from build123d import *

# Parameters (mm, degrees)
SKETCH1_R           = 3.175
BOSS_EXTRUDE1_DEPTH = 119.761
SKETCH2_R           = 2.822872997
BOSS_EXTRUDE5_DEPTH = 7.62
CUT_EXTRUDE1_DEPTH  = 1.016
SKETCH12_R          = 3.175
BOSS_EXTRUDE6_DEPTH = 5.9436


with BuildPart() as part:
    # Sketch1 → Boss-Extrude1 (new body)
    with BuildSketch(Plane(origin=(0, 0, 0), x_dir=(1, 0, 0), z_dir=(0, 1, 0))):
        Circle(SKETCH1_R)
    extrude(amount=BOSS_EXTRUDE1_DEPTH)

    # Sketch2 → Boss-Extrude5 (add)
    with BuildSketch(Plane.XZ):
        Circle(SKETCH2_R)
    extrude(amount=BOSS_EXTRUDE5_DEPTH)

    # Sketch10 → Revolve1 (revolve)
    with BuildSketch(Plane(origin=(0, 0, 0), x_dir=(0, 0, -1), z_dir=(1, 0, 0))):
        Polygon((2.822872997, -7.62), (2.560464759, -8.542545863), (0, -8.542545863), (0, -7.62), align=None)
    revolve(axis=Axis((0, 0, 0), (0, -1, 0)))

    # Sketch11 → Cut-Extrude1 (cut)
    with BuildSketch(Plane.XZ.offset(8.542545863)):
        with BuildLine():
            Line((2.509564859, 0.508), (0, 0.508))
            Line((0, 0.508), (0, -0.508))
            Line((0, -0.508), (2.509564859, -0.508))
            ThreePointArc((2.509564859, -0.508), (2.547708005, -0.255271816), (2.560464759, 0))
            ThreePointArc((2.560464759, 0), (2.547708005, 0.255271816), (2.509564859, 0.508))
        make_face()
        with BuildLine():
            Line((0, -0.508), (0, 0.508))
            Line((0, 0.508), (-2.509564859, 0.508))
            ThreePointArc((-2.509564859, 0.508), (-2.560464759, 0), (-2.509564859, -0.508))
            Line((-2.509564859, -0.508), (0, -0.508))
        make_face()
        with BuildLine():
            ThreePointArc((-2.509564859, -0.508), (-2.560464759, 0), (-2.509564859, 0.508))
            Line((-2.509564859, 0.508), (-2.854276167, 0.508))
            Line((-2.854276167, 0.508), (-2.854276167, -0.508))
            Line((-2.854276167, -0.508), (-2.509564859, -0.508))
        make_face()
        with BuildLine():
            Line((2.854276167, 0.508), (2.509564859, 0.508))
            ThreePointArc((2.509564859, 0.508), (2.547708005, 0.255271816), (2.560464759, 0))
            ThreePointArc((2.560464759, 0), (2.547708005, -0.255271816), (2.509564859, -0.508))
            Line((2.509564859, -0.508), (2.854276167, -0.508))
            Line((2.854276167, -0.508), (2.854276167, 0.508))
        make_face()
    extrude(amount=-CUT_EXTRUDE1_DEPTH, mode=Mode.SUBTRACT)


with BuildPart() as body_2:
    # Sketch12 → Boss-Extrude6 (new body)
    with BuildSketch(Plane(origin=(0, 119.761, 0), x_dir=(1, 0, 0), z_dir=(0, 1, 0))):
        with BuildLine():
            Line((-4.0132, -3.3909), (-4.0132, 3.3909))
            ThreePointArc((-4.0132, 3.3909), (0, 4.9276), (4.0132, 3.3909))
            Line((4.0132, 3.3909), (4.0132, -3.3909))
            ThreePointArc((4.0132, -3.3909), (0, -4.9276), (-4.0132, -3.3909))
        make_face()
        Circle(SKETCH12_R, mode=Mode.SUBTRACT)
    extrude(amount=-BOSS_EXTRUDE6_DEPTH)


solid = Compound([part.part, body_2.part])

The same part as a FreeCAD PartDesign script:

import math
import FreeCAD as App
import Part
import Sketcher
from FreeCAD import Vector
Q = App.Units.Quantity


def add_polygon(sketch, points):
    """Adds a closed chain of lines whose ends are joined by coincident constraints."""
    first, n = sketch.GeometryCount, len(points)
    for a, b in zip(points, points[1:] + points[:1]):
        sketch.addGeometry(Part.LineSegment(App.Vector(*a, 0), App.Vector(*b, 0)), False)
    for i in range(n):
        sketch.addConstraint(Sketcher.Constraint("Coincident", first + i, 2, first + (i + 1) % n, 1))

doc = App.newDocument("Part")
body = doc.addObject("PartDesign::Body", "Body")

sketch1 = body.newObject("Sketcher::SketchObject", "Sketch")
sketch1.AttachmentSupport = (doc.getObject("XZ_Plane"), [""])
sketch1.MapMode = "FlatFace"
sketch1.addGeometry(Part.Circle(Vector(0, 0, 0), Vector(0, 0, 1), 3.175), False)
sketch1.addConstraint(Sketcher.Constraint("Coincident", 0, 3, -1, 1))
sketch1.addConstraint(Sketcher.Constraint("Diameter", 0, Q("0.25 in")))
pad1 = body.newObject("PartDesign::Pad", "Pad")
pad1.Profile = sketch1
pad1.Length = Q("4.715 in")
pad1.Reversed = True

sketch2 = body.newObject("Sketcher::SketchObject", "Sketch001")
sketch2.AttachmentSupport = (doc.getObject("XZ_Plane"), [""])
sketch2.MapMode = "FlatFace"
sketch2.addGeometry(Part.Circle(Vector(0, 0, 0), Vector(0, 0, 1), 2.822873), False)
sketch2.addConstraint(Sketcher.Constraint("Coincident", 0, 3, -1, 1))
sketch2.addConstraint(Sketcher.Constraint("Diameter", 0, 5.645746))
pad2 = body.newObject("PartDesign::Pad", "Pad001")
pad2.Profile = sketch2
pad2.Length = Q("0.3 in")

sketch3 = body.newObject("Sketcher::SketchObject", "Sketch002")
sketch3.AttachmentSupport = (doc.getObject("YZ_Plane"), [""])
sketch3.MapMode = "FlatFace"
add_polygon(sketch3, [(-8.542546, -2.560465), (-7.62, -2.822873), (-7.62, 0), (-8.542546, 0)])
sketch3.addConstraint(Sketcher.Constraint("Vertical", 1))
sketch3.addConstraint(Sketcher.Constraint("Horizontal", 2))
sketch3.addConstraint(Sketcher.Constraint("Vertical", 3))
sketch3.addConstraint(Sketcher.Constraint("PointOnObject", 1, 2, -1))
sketch3.addConstraint(Sketcher.Constraint("DistanceX", 0, 2, -1, 1, Q("0.3 in")))
sketch3.addConstraint(Sketcher.Constraint("Distance", 0, 0.95914))
sketch3.addConstraint(Sketcher.Constraint("DistanceX", 2, 2, 2, 1, 0.922546))
sketch3.addConstraint(Sketcher.Constraint("DistanceY", 1, 1, 1, 2, 2.822873))
revolution = body.newObject("PartDesign::Revolution", "Revolution")
revolution.Profile = sketch3
revolution.ReferenceAxis = (sketch3, ["H_Axis"])
revolution.Angle = 360

sketch4 = body.newObject("Sketcher::SketchObject", "Sketch003")
sketch4.AttachmentSupport = (doc.getObject("XZ_Plane"), [""])
sketch4.MapMode = "FlatFace"
sketch4.AttachmentOffset = App.Placement(Vector(0, 0, 8.542546), App.Rotation())
add_polygon(sketch4, [(-2.854276, 0.508), (-2.854276, -0.508), (2.854276, -0.508), (2.854276, 0.508)])
sketch4.addConstraint(Sketcher.Constraint("Vertical", 0))
sketch4.addConstraint(Sketcher.Constraint("Horizontal", 1))
sketch4.addConstraint(Sketcher.Constraint("Vertical", 2))
sketch4.addConstraint(Sketcher.Constraint("Horizontal", 3))
sketch4.addConstraint(Sketcher.Constraint("Symmetric", 0, 2, 2, 2, -1, 1))
sketch4.addConstraint(Sketcher.Constraint("DistanceY", 0, 2, 0, 1, Q("0.04 in")))
sketch4.addConstraint(Sketcher.Constraint("DistanceX", 1, 1, 1, 2, 5.708552))
pocket1 = body.newObject("PartDesign::Pocket", "Pocket")
pocket1.Profile = sketch4
pocket1.Length = Q("0.04 in")
body2 = doc.addObject("PartDesign::Body", "Body001")

sketch5 = body2.newObject("Sketcher::SketchObject", "Sketch004")
sketch5.AttachmentSupport = (doc.getObject("XZ_Plane001"), [""])
sketch5.MapMode = "FlatFace"
sketch5.AttachmentOffset = App.Placement(Vector(0, 0, -4.715 * 25.4), App.Rotation())
sketch5.addGeometry(Part.LineSegment(Vector(-4.0132, -3.3909, 0), Vector(-4.0132, 3.3909, 0)), False)
sketch5.addGeometry(Part.ArcOfCircle(Part.Circle(Vector(0, -1.081127, 0), Vector(0, 0, 1), 6.008727), math.radians(48.095175), math.radians(131.904825)), False)
sketch5.addGeometry(Part.LineSegment(Vector(4.0132, 3.3909, 0), Vector(4.0132, -3.3909, 0)), False)
sketch5.addGeometry(Part.ArcOfCircle(Part.Circle(Vector(0, 1.081127, 0), Vector(0, 0, 1), 6.008727), math.radians(-131.904825), math.radians(-48.095175)), False)
sketch5.addGeometry(Part.Circle(Vector(0, 0, 0), Vector(0, 0, 1), 3.175), False)
sketch5.addConstraint(Sketcher.Constraint("Coincident", 0, 2, 1, 2))
sketch5.addConstraint(Sketcher.Constraint("Coincident", 1, 1, 2, 1))
sketch5.addConstraint(Sketcher.Constraint("Coincident", 2, 2, 3, 2))
sketch5.addConstraint(Sketcher.Constraint("Coincident", 3, 1, 0, 1))
sketch5.addConstraint(Sketcher.Constraint("Vertical", 0))
sketch5.addConstraint(Sketcher.Constraint("Vertical", 2))
sketch5.addConstraint(Sketcher.Constraint("Coincident", 4, 3, -1, 1))
sketch5.addConstraint(Sketcher.Constraint("Equal", 1, 3))
sketch5.addConstraint(Sketcher.Constraint("Symmetric", 1, 3, 3, 3, -1, 1))
sketch5.addConstraint(Sketcher.Constraint("Symmetric", 0, 2, 1, 1, -2))
sketch5.addConstraint(Sketcher.Constraint("Diameter", 4, Q("0.25 in")))
sketch5.addConstraint(Sketcher.Constraint("DistanceY", 0, 1, 0, 2, Q("0.267 in")))
sketch5.addConstraint(Sketcher.Constraint("DistanceX", 0, 2, -1, 1, Q("0.158 in")))
sketch5.addConstraint(Sketcher.Constraint("Radius", 1, 6.008727))
pad3 = body2.newObject("PartDesign::Pad", "Pad002")
pad3.Profile = sketch5
pad3.Length = Q("0.234 in")

doc.recompute()
